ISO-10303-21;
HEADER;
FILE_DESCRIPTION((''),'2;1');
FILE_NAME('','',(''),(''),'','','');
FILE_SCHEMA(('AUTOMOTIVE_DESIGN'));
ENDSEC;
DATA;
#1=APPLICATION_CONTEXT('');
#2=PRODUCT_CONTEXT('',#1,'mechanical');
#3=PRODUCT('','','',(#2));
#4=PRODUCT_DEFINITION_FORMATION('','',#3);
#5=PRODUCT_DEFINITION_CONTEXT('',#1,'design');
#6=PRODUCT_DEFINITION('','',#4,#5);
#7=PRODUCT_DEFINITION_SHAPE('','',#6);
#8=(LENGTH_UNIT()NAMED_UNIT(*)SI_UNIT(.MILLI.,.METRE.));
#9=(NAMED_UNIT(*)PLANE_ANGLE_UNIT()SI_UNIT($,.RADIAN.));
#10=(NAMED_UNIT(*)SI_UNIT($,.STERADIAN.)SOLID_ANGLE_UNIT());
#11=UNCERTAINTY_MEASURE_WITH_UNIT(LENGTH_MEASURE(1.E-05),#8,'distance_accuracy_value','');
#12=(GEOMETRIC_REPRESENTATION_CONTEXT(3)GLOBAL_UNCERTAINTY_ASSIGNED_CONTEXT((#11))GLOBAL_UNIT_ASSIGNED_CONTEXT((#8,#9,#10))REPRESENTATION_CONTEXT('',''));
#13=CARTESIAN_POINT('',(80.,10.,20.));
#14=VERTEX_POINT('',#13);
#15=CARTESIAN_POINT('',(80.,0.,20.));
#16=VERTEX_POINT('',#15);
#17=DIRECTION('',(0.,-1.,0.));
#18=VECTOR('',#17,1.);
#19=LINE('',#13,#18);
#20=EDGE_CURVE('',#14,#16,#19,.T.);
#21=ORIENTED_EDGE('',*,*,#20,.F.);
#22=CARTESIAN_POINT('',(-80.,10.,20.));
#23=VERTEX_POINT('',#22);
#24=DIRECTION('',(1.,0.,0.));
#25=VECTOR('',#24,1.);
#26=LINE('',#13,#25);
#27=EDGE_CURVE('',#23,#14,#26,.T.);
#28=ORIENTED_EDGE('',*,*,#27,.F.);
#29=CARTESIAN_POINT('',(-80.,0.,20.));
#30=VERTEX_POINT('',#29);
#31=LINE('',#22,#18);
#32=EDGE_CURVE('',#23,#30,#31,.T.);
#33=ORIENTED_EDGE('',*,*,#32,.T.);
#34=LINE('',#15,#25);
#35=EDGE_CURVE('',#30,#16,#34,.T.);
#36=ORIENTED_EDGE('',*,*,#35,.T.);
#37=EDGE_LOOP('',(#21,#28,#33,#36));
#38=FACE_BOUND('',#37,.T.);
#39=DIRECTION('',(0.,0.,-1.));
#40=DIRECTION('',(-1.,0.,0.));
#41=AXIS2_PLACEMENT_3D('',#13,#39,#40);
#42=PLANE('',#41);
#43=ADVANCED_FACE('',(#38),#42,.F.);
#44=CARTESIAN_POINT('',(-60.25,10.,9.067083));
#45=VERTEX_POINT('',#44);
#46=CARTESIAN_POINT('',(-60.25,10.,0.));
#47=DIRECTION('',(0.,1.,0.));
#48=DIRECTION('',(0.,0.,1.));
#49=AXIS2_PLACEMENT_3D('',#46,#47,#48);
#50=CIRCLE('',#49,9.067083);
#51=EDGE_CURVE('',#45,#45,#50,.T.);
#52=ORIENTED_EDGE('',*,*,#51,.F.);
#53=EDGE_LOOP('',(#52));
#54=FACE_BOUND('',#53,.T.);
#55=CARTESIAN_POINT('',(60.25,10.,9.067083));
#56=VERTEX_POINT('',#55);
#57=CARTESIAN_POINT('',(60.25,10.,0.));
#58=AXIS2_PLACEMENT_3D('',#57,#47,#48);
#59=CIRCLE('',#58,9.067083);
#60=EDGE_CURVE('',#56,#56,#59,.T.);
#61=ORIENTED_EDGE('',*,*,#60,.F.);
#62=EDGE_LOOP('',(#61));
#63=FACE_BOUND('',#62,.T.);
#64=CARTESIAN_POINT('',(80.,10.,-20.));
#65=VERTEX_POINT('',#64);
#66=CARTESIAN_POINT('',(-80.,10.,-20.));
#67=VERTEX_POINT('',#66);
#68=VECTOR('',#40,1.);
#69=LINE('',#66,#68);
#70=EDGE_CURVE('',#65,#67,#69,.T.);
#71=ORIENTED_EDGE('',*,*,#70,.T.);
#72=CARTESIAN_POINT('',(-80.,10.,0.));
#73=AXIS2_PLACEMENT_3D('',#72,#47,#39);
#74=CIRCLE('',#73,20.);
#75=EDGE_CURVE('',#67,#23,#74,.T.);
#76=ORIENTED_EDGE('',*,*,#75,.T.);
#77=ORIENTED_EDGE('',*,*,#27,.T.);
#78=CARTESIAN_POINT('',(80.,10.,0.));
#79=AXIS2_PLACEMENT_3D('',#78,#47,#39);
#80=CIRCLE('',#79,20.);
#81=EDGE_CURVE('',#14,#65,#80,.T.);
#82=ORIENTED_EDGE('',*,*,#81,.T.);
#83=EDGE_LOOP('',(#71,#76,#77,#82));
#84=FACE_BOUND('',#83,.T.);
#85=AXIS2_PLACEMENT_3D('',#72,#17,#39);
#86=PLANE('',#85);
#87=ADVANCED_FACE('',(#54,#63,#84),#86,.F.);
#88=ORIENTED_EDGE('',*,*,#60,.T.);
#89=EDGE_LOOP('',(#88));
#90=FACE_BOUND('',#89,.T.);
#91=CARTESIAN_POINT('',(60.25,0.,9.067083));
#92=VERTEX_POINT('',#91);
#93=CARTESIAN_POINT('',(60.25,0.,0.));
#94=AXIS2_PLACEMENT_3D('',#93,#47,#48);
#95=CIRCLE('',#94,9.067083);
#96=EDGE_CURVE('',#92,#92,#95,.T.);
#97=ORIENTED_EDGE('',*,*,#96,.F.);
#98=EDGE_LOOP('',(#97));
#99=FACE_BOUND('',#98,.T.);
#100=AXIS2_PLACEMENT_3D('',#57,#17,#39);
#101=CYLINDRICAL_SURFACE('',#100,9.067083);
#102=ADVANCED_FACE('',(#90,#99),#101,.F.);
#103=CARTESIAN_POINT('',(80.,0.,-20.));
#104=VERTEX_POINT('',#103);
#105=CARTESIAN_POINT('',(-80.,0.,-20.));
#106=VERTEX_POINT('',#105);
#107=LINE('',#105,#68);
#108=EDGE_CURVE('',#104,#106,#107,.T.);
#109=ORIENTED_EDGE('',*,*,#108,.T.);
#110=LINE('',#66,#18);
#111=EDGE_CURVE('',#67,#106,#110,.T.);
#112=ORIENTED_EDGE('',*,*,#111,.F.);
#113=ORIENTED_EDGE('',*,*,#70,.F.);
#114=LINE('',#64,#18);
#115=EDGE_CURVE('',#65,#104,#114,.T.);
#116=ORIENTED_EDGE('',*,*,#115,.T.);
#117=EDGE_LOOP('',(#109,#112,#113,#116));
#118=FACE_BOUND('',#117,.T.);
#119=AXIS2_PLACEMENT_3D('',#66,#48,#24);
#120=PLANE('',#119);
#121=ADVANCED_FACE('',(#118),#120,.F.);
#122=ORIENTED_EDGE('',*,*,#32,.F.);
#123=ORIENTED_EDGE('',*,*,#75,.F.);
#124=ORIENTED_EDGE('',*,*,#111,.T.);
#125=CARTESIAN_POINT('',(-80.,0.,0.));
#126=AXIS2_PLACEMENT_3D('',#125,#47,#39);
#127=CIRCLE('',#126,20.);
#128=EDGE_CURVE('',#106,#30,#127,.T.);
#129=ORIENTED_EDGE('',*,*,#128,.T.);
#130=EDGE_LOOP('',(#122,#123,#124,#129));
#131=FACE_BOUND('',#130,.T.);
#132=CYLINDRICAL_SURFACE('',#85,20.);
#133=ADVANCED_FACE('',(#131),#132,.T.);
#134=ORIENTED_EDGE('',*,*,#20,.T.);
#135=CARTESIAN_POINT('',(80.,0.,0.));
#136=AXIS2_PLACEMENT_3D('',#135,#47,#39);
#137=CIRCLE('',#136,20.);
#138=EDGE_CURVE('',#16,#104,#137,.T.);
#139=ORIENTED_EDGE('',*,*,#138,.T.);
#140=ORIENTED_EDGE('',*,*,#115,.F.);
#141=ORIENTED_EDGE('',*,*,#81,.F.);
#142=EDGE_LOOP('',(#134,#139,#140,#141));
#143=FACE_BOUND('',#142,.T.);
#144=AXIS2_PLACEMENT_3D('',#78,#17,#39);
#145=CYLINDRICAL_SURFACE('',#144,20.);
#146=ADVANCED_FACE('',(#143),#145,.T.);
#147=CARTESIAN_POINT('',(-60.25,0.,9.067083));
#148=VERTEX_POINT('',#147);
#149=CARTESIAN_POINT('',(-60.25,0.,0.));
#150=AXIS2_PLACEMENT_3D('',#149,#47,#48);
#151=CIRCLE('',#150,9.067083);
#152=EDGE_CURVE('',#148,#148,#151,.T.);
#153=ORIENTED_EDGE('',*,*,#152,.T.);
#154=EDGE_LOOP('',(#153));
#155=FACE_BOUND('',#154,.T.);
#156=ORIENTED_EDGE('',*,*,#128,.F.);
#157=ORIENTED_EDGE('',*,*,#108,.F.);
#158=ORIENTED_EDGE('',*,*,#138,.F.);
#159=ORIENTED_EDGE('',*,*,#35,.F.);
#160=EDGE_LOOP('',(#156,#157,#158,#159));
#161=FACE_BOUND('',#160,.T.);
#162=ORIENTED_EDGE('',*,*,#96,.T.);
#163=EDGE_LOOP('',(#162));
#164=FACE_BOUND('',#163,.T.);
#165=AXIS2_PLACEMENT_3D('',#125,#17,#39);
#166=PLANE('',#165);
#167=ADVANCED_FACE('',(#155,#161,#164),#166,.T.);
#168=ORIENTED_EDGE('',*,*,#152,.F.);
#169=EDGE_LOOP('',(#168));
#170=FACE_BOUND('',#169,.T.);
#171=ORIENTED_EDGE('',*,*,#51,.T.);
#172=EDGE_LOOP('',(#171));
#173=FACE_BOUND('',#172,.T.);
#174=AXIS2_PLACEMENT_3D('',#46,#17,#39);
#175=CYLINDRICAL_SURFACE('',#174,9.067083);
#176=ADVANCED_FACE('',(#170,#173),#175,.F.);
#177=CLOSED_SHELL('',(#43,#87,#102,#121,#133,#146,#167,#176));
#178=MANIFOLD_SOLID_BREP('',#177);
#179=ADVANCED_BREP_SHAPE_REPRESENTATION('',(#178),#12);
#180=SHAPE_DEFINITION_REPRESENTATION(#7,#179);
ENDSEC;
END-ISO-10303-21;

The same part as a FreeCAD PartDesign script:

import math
import FreeCAD as App
import Part
import Sketcher

doc = App.newDocument("Part")
body = doc.addObject("PartDesign::Body", "Body")

# Sketch on XZ plane
sketch1 = body.newObject("Sketcher::SketchObject", "Sketch")
sketch1.AttachmentSupport = (doc.getObject("XZ_Plane"), [""])
sketch1.MapMode = "FlatFace"
sketch1.addGeometry(Part.LineSegment(App.Vector(80, -20, 0), App.Vector(-80, -20, 0)), False)
sketch1.addGeometry(Part.ArcOfCircle(Part.Circle(App.Vector(-80, 0, 0), App.Vector(0, 0, 1), 20), math.radians(90), math.radians(270)), False)
sketch1.addGeometry(Part.LineSegment(App.Vector(-80, 20, 0), App.Vector(80, 20, 0)), False)
sketch1.addGeometry(Part.ArcOfCircle(Part.Circle(App.Vector(80, 0, 0), App.Vector(0, 0, 1), 20), math.radians(-90), math.radians(90)), False)
sketch1.addGeometry(Part.Circle(App.Vector(60, 0, 0), App.Vector(0, 0, 1), 9), False)
sketch1.addGeometry(Part.Circle(App.Vector(-60, 0, 0), App.Vector(0, 0, 1), 9), False)
sketch1.addConstraint(Sketcher.Constraint("Tangent", 0, 2, 1, 2))
sketch1.addConstraint(Sketcher.Constraint("Tangent", 1, 1, 2, 1))
sketch1.addConstraint(Sketcher.Constraint("Tangent", 2, 2, 3, 2))
sketch1.addConstraint(Sketcher.Constraint("Tangent", 3, 1, 0, 1))
sketch1.addConstraint(Sketcher.Constraint("Horizontal", 0))
sketch1.addConstraint(Sketcher.Constraint("Horizontal", 2))
sketch1.addConstraint(Sketcher.Constraint("Equal", 4, 5))
sketch1.addConstraint(Sketcher.Constraint("Symmetric", 1, 3, 3, 3, -1, 1))
sketch1.addConstraint(Sketcher.Constraint("Symmetric", 4, 3, 5, 3, -1, 1))
sketch1.addConstraint(Sketcher.Constraint("PointOnObject", 4, 3, -1))
sketch1.addConstraint(Sketcher.Constraint("Radius", 1, 20.0))
sketch1.addConstraint(Sketcher.Constraint("DistanceX", 0, 2, 0, 1, 160.0))
sketch1.addConstraint(Sketcher.Constraint("DistanceX", 5, 3, 4, 3, 120.5))
sketch1.addConstraint(Sketcher.Constraint("Diameter", 4, 18.134166))
pad1 = body.newObject("PartDesign::Pad", "Pad")
pad1.Profile = sketch1
pad1.Length = 10
pad1.Reversed = True

doc.recompute()
